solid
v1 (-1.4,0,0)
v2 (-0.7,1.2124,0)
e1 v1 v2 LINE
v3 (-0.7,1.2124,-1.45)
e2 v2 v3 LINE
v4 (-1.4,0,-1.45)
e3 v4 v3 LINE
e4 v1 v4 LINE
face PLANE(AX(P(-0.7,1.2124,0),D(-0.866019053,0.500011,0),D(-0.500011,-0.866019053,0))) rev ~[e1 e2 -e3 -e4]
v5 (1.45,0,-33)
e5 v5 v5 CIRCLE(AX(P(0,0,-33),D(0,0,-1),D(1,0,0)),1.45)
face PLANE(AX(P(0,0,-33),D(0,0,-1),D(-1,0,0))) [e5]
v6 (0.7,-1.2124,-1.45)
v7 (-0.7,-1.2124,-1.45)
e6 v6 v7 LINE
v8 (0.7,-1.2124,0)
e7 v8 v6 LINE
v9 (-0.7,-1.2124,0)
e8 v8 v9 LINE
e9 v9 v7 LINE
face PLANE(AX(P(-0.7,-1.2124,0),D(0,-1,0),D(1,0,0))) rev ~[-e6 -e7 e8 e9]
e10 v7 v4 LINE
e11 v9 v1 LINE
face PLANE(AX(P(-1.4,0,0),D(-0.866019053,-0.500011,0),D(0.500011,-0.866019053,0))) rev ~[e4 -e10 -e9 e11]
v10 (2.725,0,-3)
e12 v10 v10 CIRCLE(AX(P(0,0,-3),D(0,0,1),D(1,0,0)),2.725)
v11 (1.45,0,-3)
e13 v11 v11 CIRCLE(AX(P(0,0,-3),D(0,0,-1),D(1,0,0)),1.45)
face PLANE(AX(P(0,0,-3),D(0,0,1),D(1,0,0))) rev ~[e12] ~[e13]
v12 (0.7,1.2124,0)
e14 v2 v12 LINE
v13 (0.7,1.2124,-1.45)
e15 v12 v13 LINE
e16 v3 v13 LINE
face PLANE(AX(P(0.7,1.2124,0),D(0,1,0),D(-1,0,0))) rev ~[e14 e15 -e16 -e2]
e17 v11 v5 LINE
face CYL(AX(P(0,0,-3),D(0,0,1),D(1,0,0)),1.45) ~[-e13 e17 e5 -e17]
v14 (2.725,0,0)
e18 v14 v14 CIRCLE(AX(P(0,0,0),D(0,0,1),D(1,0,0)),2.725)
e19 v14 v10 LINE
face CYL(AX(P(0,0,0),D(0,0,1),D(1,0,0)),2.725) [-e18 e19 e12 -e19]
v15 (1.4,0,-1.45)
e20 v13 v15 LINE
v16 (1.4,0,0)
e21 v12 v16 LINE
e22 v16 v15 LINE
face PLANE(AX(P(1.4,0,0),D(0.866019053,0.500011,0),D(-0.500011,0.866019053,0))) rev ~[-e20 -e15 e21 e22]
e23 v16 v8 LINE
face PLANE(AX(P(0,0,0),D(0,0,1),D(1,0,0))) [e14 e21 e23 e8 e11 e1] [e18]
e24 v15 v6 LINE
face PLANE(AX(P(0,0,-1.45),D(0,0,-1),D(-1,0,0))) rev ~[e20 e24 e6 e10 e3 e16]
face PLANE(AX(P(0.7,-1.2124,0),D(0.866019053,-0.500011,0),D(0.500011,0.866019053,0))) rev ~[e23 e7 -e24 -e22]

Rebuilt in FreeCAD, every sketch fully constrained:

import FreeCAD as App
import Part
import Sketcher

V = App.Vector
Q = App.Units.Quantity

doc = App.newDocument("Part")
params = doc.addObject("Spreadsheet::Sheet", "Params")
for row, (alias, value) in enumerate([
    ("sketch1_diameter", "5.45 mm"),
    ("pad1_length", "3 mm"),
    ("sketch2_width", "1.4 mm"),
    ("sketch2_length", "1.4 mm"),
    ("pocket1_length", "1.45 mm"),
    ("sketch3_diameter", "2.9 mm"),
    ("pad2_length", "30 mm"),
], start=1):
    params.set(f"A{row}", alias)
    params.set(f"B{row}", "=" + value)
    params.setAlias(f"B{row}", alias)

body = doc.addObject("PartDesign::Body", "Body")

# Sketch on XY plane
sketch1 = body.newObject("Sketcher::SketchObject", "Sketch")
sketch1.AttachmentSupport = (doc.getObject("XY_Plane"), [""])
sketch1.MapMode = "FlatFace"
sketch1.addGeometry(Part.Circle(V(0, 0, 0), V(0, 0, 1), 2.7), False)
sketch1.addConstraint(Sketcher.Constraint("Coincident", 0, 3, -1, 1))
sketch1.addConstraint(Sketcher.Constraint("Diameter", 0, Q("5.45 mm")))
sketch1.setExpression("Constraints[1]", "Params.sketch1_diameter")
pad1 = body.newObject("PartDesign::Pad", "Pad")
pad1.Profile = sketch1
pad1.setExpression("Length", "Params.pad1_length")
pad1.Reversed = True

# Sketch on XY plane
sketch2 = body.newObject("Sketcher::SketchObject", "Sketch001")
sketch2.AttachmentSupport = (doc.getObject("XY_Plane"), [""])
sketch2.MapMode = "FlatFace"
sketch2.addGeometry(Part.LineSegment(V(-1.4, 0, 0), V(-0.7, -1.2, 0)), False)
sketch2.addGeometry(Part.LineSegment(V(-0.7, -1.2, 0), V(0.7, -1.2, 0)), False)
sketch2.addGeometry(Part.LineSegment(V(0.7, -1.2, 0), V(1.4, 0, 0)), False)
sketch2.addGeometry(Part.LineSegment(V(1.4, 0, 0), V(0.7, 1.2, 0)), False)
sketch2.addGeometry(Part.LineSegment(V(0.7, 1.2, 0), V(-0.7, 1.2, 0)), False)
sketch2.addGeometry(Part.LineSegment(V(-0.7, 1.2, 0), V(-1.4, 0, 0)), False)
sketch2.addConstraint(Sketcher.Constraint("Coincident", 0, 2, 1, 1))
sketch2.addConstraint(Sketcher.Constraint("Coincident", 1, 2, 2, 1))
sketch2.addConstraint(Sketcher.Constraint("Coincident", 2, 2, 3, 1))
sketch2.addConstraint(Sketcher.Constraint("Coincident", 3, 2, 4, 1))
sketch2.addConstraint(Sketcher.Constraint("Coincident", 4, 2, 5, 1))
sketch2.addConstraint(Sketcher.Constraint("Coincident", 5, 2, 0, 1))
sketch2.addConstraint(Sketcher.Constraint("Horizontal", 1))
sketch2.addConstraint(Sketcher.Constraint("Horizontal", 4))
sketch2.addConstraint(Sketcher.Constraint("Symmetric", 0, 2, 3, 2, -1, 1))
sketch2.addConstraint(Sketcher.Constraint("Symmetric", 2, 2, 5, 2, -1, 1))
sketch2.addConstraint(Sketcher.Constraint("PointOnObject", 2, 2, -1))
sketch2.addConstraint(Sketcher.Constraint("Parallel", 2, 5))
sketch2.addConstraint(Sketcher.Constraint("Vertical", 1, 2, 3, 2))
sketch2.addConstraint(Sketcher.Constraint("Angle", 0, Q("-59.9993 deg")))
sketch2.addConstraint(Sketcher.Constraint("DistanceX", 1, 1, 1, 2, Q("1.4 mm")))
sketch2.addConstraint(Sketcher.Constraint("Distance", 0, Q("1.4 mm")))
sketch2.setExpression("Constraints[14]", "Params.sketch2_width")
sketch2.setExpression("Constraints[15]", "Params.sketch2_length")
pocket1 = body.newObject("PartDesign::Pocket", "Pocket")
pocket1.Profile = sketch2
pocket1.setExpression("Length", "Params.pocket1_length")

# Sketch on XY plane
sketch3 = body.newObject("Sketcher::SketchObject", "Sketch002")
sketch3.AttachmentSupport = (doc.getObject("XY_Plane"), [""])
sketch3.MapMode = "FlatFace"
sketch3.AttachmentOffset = App.Placement(V(0, 0, -3), App.Rotation())
sketch3.addGeometry(Part.Circle(V(0, 0, 0), V(0, 0, 1), 1.4), False)
sketch3.addConstraint(Sketcher.Constraint("Coincident", 0, 3, -1, 1))
sketch3.addConstraint(Sketcher.Constraint("Diameter", 0, Q("2.9 mm")))
sketch3.setExpression("Constraints[1]", "Params.sketch3_diameter")
pad2 = body.newObject("PartDesign::Pad", "Pad001")
pad2.Profile = sketch3
pad2.setExpression("Length", "Params.pad2_length")
pad2.Reversed = True

doc.recompute()
